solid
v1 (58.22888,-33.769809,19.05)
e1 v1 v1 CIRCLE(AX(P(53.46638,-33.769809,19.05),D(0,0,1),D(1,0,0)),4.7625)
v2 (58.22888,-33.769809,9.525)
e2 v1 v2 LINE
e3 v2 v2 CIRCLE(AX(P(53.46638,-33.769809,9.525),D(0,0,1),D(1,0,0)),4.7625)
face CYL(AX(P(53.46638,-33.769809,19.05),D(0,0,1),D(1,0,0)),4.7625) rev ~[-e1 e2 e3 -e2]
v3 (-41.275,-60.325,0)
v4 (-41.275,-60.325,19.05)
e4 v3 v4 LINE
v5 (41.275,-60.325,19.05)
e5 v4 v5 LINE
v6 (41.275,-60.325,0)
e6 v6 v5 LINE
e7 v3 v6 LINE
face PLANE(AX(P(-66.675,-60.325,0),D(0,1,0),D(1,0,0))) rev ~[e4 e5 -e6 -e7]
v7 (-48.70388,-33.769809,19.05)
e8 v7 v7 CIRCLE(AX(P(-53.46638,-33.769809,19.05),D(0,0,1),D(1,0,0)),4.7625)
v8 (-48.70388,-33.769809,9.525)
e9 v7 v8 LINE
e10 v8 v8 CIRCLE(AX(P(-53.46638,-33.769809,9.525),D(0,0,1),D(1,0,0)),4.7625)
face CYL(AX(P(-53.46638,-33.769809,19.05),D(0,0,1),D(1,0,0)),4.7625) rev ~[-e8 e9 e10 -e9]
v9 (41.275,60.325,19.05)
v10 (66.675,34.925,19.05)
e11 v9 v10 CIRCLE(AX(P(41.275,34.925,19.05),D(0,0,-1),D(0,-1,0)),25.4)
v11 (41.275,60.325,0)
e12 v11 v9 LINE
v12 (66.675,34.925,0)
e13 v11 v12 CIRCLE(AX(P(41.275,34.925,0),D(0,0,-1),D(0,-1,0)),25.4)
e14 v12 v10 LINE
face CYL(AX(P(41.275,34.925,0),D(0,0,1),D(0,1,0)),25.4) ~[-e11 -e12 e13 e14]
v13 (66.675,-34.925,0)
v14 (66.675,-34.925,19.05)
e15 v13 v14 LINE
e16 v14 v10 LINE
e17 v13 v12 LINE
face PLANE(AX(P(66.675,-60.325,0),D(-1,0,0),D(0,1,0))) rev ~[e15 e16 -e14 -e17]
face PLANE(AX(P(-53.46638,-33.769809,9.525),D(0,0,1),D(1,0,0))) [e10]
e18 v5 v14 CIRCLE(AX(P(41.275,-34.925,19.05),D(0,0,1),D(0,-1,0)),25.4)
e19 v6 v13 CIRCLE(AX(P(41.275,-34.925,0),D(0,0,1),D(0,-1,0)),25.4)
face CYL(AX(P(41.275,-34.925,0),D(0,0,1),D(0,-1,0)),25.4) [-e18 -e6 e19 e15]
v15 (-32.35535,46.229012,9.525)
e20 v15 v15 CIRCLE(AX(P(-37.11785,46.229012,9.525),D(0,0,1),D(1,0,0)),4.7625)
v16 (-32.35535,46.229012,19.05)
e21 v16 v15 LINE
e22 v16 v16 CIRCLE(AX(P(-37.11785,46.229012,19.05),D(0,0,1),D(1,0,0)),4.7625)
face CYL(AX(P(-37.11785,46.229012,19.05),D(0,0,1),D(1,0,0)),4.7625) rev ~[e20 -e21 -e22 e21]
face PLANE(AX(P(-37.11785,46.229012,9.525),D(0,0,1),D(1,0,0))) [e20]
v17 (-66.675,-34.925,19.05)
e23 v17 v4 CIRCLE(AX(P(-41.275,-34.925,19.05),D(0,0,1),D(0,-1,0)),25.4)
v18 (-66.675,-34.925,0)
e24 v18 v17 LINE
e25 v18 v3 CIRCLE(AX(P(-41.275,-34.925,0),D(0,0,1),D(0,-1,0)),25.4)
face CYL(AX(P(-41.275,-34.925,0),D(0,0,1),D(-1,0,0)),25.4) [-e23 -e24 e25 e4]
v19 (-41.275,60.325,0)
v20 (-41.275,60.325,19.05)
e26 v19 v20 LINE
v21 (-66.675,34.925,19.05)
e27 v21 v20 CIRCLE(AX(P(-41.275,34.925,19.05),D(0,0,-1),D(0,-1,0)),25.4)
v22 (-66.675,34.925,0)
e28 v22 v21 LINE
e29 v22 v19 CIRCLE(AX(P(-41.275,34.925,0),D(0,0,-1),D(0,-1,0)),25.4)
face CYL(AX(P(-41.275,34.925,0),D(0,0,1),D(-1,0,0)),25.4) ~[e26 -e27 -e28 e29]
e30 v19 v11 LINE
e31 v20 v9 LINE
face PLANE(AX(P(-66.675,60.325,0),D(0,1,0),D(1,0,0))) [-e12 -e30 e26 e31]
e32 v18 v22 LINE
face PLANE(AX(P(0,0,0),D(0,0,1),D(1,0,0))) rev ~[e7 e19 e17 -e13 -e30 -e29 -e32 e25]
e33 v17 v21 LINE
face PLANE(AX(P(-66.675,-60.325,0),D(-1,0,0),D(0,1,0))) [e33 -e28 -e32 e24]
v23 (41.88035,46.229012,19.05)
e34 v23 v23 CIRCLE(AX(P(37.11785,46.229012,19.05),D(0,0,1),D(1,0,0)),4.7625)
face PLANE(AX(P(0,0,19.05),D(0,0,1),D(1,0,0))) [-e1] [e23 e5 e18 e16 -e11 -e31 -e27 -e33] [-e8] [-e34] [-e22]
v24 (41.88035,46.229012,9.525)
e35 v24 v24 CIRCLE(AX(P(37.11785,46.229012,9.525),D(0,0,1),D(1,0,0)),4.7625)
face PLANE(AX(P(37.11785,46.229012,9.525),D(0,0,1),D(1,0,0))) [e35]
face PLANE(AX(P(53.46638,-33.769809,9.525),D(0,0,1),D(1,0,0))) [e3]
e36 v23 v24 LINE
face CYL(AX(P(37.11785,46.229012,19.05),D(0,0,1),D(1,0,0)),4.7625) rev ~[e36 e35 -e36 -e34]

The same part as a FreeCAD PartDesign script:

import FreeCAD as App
import Part
import Sketcher
Q = App.Units.Quantity


def edges_at(feature, points):
    """Names of the edges that pass closest to the given points."""
    edges = feature.Shape.Edges
    near = lambda p: min(range(len(edges)), key=lambda i: edges[i].distToShape(Part.Vertex(*p))[0])
    return sorted({f"Edge{near(p) + 1}" for p in points})

doc = App.newDocument("Part")
body = doc.addObject("PartDesign::Body", "Body")

# Sketch on XY plane
sketch1 = doc.addObject("Sketcher::SketchObject", "Sketch")
body.addObject(sketch1)
sketch1.AttachmentSupport = (doc.XY_Plane, [""])
sketch1.MapMode = "FlatFace"
sketch1.addGeometry([
    Part.LineSegment(App.Vector(-67, 60, 0), App.Vector(-67, -60, 0)),
    Part.LineSegment(App.Vector(-67, -60, 0), App.Vector(67, -60, 0)),
    Part.LineSegment(App.Vector(67, -60, 0), App.Vector(67, 60, 0)),
    Part.LineSegment(App.Vector(67, 60, 0), App.Vector(-67, 60, 0)),
], False)
sketch1.addConstraint([
    Sketcher.Constraint("Coincident", 0, 2, 1, 1),
    Sketcher.Constraint("Coincident", 1, 2, 2, 1),
    Sketcher.Constraint("Coincident", 2, 2, 3, 1),
    Sketcher.Constraint("Coincident", 3, 2, 0, 1),
    Sketcher.Constraint("Vertical", 0),
    Sketcher.Constraint("Horizontal", 1),
    Sketcher.Constraint("Vertical", 2),
    Sketcher.Constraint("Horizontal", 3),
    Sketcher.Constraint("Symmetric", 0, 2, 2, 2, -1, 1),
    Sketcher.Constraint("DistanceX", 1, 1, 1, 2, Q("5.25 in")),
    Sketcher.Constraint("DistanceY", 0, 2, 0, 1, Q("4.75 in")),
])
pad1 = doc.addObject("PartDesign::Pad", "Pad")
body.addObject(pad1)
pad1.Profile = sketch1
pad1.Length = Q("0.75 in")

# Sketch on XY plane
sketch2 = doc.addObject("Sketcher::SketchObject", "Sketch001")
body.addObject(sketch2)
sketch2.AttachmentSupport = (doc.XY_Plane, [""])
sketch2.MapMode = "FlatFace"
sketch2.AttachmentOffset = App.Placement(App.Vector(0, 0, 0.75 * 25.4), App.Rotation())
sketch2.addGeometry([
    Part.Circle(App.Vector(-37.1, 46.2, 0), App.Vector(0, 0, 1), 4.8),
    Part.Circle(App.Vector(-53.5, -33.8, 0), App.Vector(0, 0, 1), 4.8),
    Part.Circle(App.Vector(37.1, 46.2, 0), App.Vector(0, 0, 1), 4.8),
    Part.Circle(App.Vector(53.5, -33.8, 0), App.Vector(0, 0, 1), 4.8),
], False)
sketch2.addConstraint([
    Sketcher.Constraint("Equal", 0, 1),
    Sketcher.Constraint("Equal", 1, 2),
    Sketcher.Constraint("Equal", 2, 3),
    Sketcher.Constraint("Symmetric", 0, 3, 2, 3, -2),
    Sketcher.Constraint("Symmetric", 1, 3, 3, 3, -2),
    Sketcher.Constraint("Diameter", 0, Q("0.375 in")),
    Sketcher.Constraint("DistanceX", 0, 3, 2, 3, Q("74.2357 mm")),
    Sketcher.Constraint("DistanceY", -1, 1, 0, 3, Q("46.229012 mm")),
    Sketcher.Constraint("DistanceX", 1, 3, -1, 1, Q("53.46638 mm")),
    Sketcher.Constraint("DistanceY", 1, 3, -1, 1, Q("33.769809 mm")),
])
pocket1 = doc.addObject("PartDesign::Pocket", "Pocket")
body.addObject(pocket1)
pocket1.Profile = sketch2
pocket1.Length = Q("0.375 in")
doc.recompute()

fillet = doc.addObject("PartDesign::Fillet", "Fillet")
body.addObject(fillet)
fillet.Base = (pocket1, edges_at(pocket1, [
    (66.675, 60.325, 9.525),
    (66.675, -60.325, 9.525),
    (-66.675, -60.325, 9.525),
    (-66.675, 60.325, 9.525),
]))
fillet.Radius = Q("1 in")

doc.recompute()
